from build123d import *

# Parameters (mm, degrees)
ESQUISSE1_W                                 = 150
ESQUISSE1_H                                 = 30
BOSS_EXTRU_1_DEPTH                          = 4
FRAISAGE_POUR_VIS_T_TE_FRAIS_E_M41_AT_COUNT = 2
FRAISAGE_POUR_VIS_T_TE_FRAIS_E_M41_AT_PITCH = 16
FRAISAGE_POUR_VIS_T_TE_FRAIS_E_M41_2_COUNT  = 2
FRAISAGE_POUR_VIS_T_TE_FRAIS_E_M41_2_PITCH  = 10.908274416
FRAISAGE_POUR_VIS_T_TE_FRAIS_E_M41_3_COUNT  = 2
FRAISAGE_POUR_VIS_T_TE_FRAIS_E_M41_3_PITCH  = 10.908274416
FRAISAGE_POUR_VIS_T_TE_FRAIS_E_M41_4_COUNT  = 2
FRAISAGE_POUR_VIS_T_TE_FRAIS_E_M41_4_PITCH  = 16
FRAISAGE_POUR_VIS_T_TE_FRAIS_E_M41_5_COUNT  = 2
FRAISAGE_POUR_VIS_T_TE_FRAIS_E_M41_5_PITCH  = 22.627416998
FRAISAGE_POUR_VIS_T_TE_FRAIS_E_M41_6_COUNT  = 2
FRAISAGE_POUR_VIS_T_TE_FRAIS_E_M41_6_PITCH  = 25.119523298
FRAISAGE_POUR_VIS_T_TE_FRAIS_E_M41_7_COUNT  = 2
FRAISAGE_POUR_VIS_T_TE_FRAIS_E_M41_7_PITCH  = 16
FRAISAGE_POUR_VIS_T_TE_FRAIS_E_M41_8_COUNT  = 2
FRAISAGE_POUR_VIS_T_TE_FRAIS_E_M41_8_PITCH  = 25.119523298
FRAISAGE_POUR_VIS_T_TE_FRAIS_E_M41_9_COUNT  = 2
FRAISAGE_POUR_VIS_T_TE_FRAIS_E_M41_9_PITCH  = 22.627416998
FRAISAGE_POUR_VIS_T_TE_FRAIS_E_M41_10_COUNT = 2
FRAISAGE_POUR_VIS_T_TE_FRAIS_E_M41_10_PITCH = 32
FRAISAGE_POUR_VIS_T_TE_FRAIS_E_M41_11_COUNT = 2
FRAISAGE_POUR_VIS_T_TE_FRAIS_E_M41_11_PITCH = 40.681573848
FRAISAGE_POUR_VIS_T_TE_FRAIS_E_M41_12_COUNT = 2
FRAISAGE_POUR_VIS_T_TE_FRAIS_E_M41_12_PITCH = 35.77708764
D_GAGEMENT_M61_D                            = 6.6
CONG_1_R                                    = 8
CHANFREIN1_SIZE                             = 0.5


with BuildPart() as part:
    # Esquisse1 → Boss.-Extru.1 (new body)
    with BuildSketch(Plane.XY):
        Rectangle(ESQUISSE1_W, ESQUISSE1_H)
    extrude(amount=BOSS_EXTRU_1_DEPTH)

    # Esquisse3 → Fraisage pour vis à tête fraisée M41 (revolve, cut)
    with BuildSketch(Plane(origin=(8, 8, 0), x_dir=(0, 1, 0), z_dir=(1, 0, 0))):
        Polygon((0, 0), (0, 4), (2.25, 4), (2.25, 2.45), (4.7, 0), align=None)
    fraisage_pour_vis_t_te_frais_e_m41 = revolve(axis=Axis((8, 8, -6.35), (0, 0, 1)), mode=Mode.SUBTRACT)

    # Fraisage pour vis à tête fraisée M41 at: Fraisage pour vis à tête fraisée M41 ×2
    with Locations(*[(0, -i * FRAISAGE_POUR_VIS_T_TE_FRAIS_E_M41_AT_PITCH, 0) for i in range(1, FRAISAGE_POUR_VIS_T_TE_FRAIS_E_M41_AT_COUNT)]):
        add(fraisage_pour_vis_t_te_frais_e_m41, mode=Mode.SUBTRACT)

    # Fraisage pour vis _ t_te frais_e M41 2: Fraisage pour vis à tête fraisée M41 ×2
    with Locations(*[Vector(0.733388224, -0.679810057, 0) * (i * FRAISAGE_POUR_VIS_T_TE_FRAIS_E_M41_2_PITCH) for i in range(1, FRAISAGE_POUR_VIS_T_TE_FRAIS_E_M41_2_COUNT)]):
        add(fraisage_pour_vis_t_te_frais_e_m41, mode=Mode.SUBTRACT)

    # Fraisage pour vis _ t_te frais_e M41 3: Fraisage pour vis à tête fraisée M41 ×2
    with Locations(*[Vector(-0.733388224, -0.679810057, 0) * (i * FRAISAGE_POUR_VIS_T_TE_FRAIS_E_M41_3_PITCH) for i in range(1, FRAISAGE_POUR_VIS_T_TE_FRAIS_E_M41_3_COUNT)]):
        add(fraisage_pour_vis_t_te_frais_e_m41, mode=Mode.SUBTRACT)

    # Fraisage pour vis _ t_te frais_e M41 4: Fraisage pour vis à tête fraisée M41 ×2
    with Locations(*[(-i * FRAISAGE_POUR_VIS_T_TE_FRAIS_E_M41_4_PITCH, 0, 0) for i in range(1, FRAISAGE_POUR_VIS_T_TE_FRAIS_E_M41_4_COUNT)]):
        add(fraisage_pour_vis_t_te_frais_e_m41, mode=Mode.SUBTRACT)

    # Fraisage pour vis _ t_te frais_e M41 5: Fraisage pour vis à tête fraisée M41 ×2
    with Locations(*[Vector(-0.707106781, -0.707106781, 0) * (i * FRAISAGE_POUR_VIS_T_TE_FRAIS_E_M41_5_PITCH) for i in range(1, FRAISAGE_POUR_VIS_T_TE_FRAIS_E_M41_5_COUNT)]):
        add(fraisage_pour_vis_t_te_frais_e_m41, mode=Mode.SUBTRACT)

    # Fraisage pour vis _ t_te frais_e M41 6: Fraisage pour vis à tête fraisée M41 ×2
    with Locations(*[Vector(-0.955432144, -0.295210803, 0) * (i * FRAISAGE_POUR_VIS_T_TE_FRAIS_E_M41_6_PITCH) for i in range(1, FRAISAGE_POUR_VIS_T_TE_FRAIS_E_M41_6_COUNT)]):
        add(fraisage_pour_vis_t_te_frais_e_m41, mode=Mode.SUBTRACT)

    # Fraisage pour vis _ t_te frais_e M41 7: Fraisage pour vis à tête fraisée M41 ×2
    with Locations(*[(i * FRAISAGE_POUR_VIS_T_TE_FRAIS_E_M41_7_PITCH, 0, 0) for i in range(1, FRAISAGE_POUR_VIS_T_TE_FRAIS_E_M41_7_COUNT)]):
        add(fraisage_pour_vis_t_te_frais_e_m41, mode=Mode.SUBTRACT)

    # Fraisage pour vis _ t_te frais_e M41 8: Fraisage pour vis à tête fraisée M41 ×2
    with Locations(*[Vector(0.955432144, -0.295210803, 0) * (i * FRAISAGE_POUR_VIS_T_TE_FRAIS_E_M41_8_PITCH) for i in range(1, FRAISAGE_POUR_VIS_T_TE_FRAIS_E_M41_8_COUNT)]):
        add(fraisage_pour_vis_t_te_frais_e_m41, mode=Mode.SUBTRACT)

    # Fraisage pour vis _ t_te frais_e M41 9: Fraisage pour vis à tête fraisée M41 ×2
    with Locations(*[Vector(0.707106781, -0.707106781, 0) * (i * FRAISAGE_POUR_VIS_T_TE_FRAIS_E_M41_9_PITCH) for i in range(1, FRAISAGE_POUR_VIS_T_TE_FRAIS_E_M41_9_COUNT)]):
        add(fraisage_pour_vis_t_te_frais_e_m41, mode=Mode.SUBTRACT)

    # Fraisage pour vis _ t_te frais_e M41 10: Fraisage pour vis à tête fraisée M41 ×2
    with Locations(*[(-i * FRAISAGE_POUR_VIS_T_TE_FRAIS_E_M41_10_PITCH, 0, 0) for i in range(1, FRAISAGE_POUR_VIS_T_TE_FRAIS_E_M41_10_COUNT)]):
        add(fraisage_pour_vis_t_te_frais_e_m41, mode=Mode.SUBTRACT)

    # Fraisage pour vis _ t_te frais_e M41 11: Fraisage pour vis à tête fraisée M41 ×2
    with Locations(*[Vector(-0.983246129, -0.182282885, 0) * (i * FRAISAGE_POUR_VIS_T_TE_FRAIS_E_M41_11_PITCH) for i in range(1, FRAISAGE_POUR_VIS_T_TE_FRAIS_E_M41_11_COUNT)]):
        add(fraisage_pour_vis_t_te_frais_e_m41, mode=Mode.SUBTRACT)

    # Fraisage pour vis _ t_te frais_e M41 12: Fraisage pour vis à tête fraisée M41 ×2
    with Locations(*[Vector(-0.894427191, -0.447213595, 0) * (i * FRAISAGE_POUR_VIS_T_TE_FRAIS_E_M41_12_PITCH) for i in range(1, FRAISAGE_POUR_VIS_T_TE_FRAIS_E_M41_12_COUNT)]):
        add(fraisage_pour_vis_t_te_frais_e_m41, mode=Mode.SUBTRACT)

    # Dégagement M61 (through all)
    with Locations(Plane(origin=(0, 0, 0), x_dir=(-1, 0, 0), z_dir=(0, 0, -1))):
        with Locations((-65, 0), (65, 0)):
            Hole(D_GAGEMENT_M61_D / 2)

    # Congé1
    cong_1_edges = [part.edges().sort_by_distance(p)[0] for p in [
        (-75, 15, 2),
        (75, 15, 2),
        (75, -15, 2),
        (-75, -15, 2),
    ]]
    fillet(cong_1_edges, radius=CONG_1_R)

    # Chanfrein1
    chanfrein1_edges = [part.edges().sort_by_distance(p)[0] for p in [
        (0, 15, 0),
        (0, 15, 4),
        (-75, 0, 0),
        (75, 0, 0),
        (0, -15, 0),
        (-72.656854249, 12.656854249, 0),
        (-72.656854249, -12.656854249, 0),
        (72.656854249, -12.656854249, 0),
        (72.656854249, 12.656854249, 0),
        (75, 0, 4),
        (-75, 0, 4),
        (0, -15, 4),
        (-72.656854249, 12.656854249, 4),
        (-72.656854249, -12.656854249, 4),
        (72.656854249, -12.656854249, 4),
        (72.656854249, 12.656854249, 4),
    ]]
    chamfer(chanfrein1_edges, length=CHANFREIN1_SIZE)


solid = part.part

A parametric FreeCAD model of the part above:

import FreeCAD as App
import Part
import Sketcher
from FreeCAD import Vector
Q = App.Units.Quantity


def edges_at(feature, points):
    """Names of the edges that pass closest to the given points."""
    edges = feature.Shape.Edges
    near = lambda p: min(range(len(edges)), key=lambda i: edges[i].distToShape(Part.Vertex(*p))[0])
    return sorted({f"Edge{near(p) + 1}" for p in points})

doc = App.newDocument("Part")
body = doc.addObject("PartDesign::Body", "Body")

sketch1 = body.newObject("Sketcher::SketchObject", "Sketch")
sketch1.AttachmentSupport = (doc.getObject("XY_Plane"), [""])
sketch1.MapMode = "FlatFace"
sketch1.addGeometry([
    Part.LineSegment(Vector(-75, 15, 0), Vector(-75, -15, 0)),
    Part.LineSegment(Vector(-75, -15, 0), Vector(75, -15, 0)),
    Part.LineSegment(Vector(75, -15, 0), Vector(75, 15, 0)),
    Part.LineSegment(Vector(75, 15, 0), Vector(-75, 15, 0)),
], False)
sketch1.addConstraint([
    Sketcher.Constraint("Coincident", 0, 2, 1, 1),
    Sketcher.Constraint("Coincident", 1, 2, 2, 1),
    Sketcher.Constraint("Coincident", 2, 2, 3, 1),
    Sketcher.Constraint("Coincident", 3, 2, 0, 1),
    Sketcher.Constraint("Vertical", 0),
    Sketcher.Constraint("Horizontal", 1),
    Sketcher.Constraint("Vertical", 2),
    Sketcher.Constraint("Horizontal", 3),
    Sketcher.Constraint("Symmetric", 0, 2, 2, 2, -1, 1),
    Sketcher.Constraint("DistanceX", 1, 1, 1, 2, 150.0),
    Sketcher.Constraint("DistanceY", 0, 2, 0, 1, 30.0),
])
pad1 = body.newObject("PartDesign::Pad", "Pad")
pad1.Profile = sketch1
pad1.Length = 4

sketch2 = body.newObject("Sketcher::SketchObject", "Sketch001")
sketch2.AttachmentSupport = (doc.getObject("YZ_Plane"), [""])
sketch2.MapMode = "FlatFace"
sketch2.AttachmentOffset = App.Placement(Vector(0, 0, 8), App.Rotation())
sketch2.addGeometry([
    Part.LineSegment(Vector(8, 4, 0), Vector(8, 0, 0)),
    Part.LineSegment(Vector(8, 0, 0), Vector(12.7, 0, 0)),
    Part.LineSegment(Vector(12.7, 0, 0), Vector(10.2, 2.5, 0)),
    Part.LineSegment(Vector(10.2, 2.5, 0), Vector(10.2, 4, 0)),
    Part.LineSegment(Vector(10.2, 4, 0), Vector(8, 4, 0)),
], False)
sketch2.addGeometry(Part.LineSegment(Vector(8, 0, 0), Vector(8, 4, 0)), True)
sketch2.addConstraint([
    Sketcher.Constraint("Coincident", 0, 2, 1, 1),
    Sketcher.Constraint("Coincident", 1, 2, 2, 1),
    Sketcher.Constraint("Coincident", 2, 2, 3, 1),
    Sketcher.Constraint("Coincident", 3, 2, 4, 1),
    Sketcher.Constraint("Coincident", 4, 2, 0, 1),
    Sketcher.Constraint("Vertical", 0),
    Sketcher.Constraint("Horizontal", 1),
    Sketcher.Constraint("Vertical", 3),
    Sketcher.Constraint("Horizontal", 4),
    Sketcher.Constraint("Vertical", 5),
    Sketcher.Constraint("Coincident", 5, 1, 0, 2),
    Sketcher.Constraint("PointOnObject", 0, 2, -1),
    Sketcher.Constraint("Horizontal", 3, 2, 5, 2),
    Sketcher.Constraint("DistanceY", 0, 2, 0, 1, 4.0),
    Sketcher.Constraint("Angle", 2, Q("135 deg")),
    Sketcher.Constraint("DistanceX", 1, 1, 1, 2, 4.7),
    Sketcher.Constraint("DistanceX", -1, 1, 0, 2, 8.0),
    Sketcher.Constraint("DistanceX", 4, 2, 4, 1, 2.25),
])
groove = body.newObject("PartDesign::Groove", "Groove")
groove.Profile = sketch2
groove.ReferenceAxis = (sketch2, ["Axis0"])
groove.Angle = 360
doc.recompute()

linearpattern = body.newObject("PartDesign::LinearPattern", "LinearPattern")
linearpattern.Originals = [groove]
linearpattern.Direction = (doc.getObject("Y_Axis"), [""])
linearpattern.Mode = "offset"
linearpattern.Offset = 16
linearpattern.Occurrences = 2
linearpattern.Reversed = True
body.Tip = linearpattern
doc.recompute()

datumline = body.newObject("PartDesign::Line", "DatumLine")
datumline.Placement = App.Placement(Vector(0, 0, 0), App.Rotation(Vector(0, 0, 1), Vector(0.733388224, -0.679810057, 0)))
linearpattern2 = body.newObject("PartDesign::LinearPattern", "LinearPattern001")
linearpattern2.Originals = [groove]
linearpattern2.Direction = (datumline, [""])
linearpattern2.Mode = "offset"
linearpattern2.Offset = 10.908274
linearpattern2.Occurrences = 2
body.Tip = linearpattern2
doc.recompute()

datumline2 = body.newObject("PartDesign::Line", "DatumLine001")
datumline2.Placement = App.Placement(Vector(0, 0, 0), App.Rotation(Vector(0, 0, 1), Vector(-0.733388224, -0.679810057, 0)))
linearpattern3 = body.newObject("PartDesign::LinearPattern", "LinearPattern002")
linearpattern3.Originals = [groove]
linearpattern3.Direction = (datumline2, [""])
linearpattern3.Mode = "offset"
linearpattern3.Offset = 10.908274
linearpattern3.Occurrences = 2
body.Tip = linearpattern3
doc.recompute()

linearpattern4 = body.newObject("PartDesign::LinearPattern", "LinearPattern003")
linearpattern4.Originals = [groove]
linearpattern4.Direction = (doc.getObject("X_Axis"), [""])
linearpattern4.Mode = "offset"
linearpattern4.Offset = 16
linearpattern4.Occurrences = 2
linearpattern4.Reversed = True
body.Tip = linearpattern4
doc.recompute()

datumline3 = body.newObject("PartDesign::Line", "DatumLine002")
datumline3.Placement = App.Placement(Vector(0, 0, 0), App.Rotation(Vector(0, 0, 1), Vector(-0.707106781, -0.707106781, 0)))
linearpattern5 = body.newObject("PartDesign::LinearPattern", "LinearPattern004")
linearpattern5.Originals = [groove]
linearpattern5.Direction = (datumline3, [""])
linearpattern5.Mode = "offset"
linearpattern5.Offset = 22.627417
linearpattern5.Occurrences = 2
body.Tip = linearpattern5
doc.recompute()

datumline4 = body.newObject("PartDesign::Line", "DatumLine003")
datumline4.Placement = App.Placement(Vector(0, 0, 0), App.Rotation(Vector(0, 0, 1), Vector(-0.955432144, -0.295210803, 0)))
linearpattern6 = body.newObject("PartDesign::LinearPattern", "LinearPattern005")
linearpattern6.Originals = [groove]
linearpattern6.Direction = (datumline4, [""])
linearpattern6.Mode = "offset"
linearpattern6.Offset = 25.119523
linearpattern6.Occurrences = 2
body.Tip = linearpattern6
doc.recompute()

linearpattern7 = body.newObject("PartDesign::LinearPattern", "LinearPattern006")
linearpattern7.Originals = [groove]
linearpattern7.Direction = (doc.getObject("X_Axis"), [""])
linearpattern7.Mode = "offset"
linearpattern7.Offset = 16
linearpattern7.Occurrences = 2
body.Tip = linearpattern7
doc.recompute()

datumline5 = body.newObject("PartDesign::Line", "DatumLine004")
datumline5.Placement = App.Placement(Vector(0, 0, 0), App.Rotation(Vector(0, 0, 1), Vector(0.955432144, -0.295210803, 0)))
linearpattern8 = body.newObject("PartDesign::LinearPattern", "LinearPattern007")
linearpattern8.Originals = [groove]
linearpattern8.Direction = (datumline5, [""])
linearpattern8.Mode = "offset"
linearpattern8.Offset = 25.119523
linearpattern8.Occurrences = 2
body.Tip = linearpattern8
doc.recompute()

datumline6 = body.newObject("PartDesign::Line", "DatumLine005")
datumline6.Placement = App.Placement(Vector(0, 0, 0), App.Rotation(Vector(0, 0, 1), Vector(0.707106781, -0.707106781, 0)))
linearpattern9 = body.newObject("PartDesign::LinearPattern", "LinearPattern008")
linearpattern9.Originals = [groove]
linearpattern9.Direction = (datumline6, [""])
linearpattern9.Mode = "offset"
linearpattern9.Offset = 22.627417
linearpattern9.Occurrences = 2
body.Tip = linearpattern9
doc.recompute()

linearpattern10 = body.newObject("PartDesign::LinearPattern", "LinearPattern009")
linearpattern10.Originals = [groove]
linearpattern10.Direction = (doc.getObject("X_Axis"), [""])
linearpattern10.Mode = "offset"
linearpattern10.Offset = 32
linearpattern10.Occurrences = 2
linearpattern10.Reversed = True
body.Tip = linearpattern10
doc.recompute()

datumline7 = body.newObject("PartDesign::Line", "DatumLine006")
datumline7.Placement = App.Placement(Vector(0, 0, 0), App.Rotation(Vector(0, 0, 1), Vector(-0.983246129, -0.182282885, 0)))
linearpattern11 = body.newObject("PartDesign::LinearPattern", "LinearPattern010")
linearpattern11.Originals = [groove]
linearpattern11.Direction = (datumline7, [""])
linearpattern11.Mode = "offset"
linearpattern11.Offset = 40.681574
linearpattern11.Occurrences = 2
body.Tip = linearpattern11
doc.recompute()

datumline8 = body.newObject("PartDesign::Line", "DatumLine007")
datumline8.Placement = App.Placement(Vector(0, 0, 0), App.Rotation(Vector(0, 0, 1), Vector(-0.894427191, -0.447213595, 0)))
linearpattern12 = body.newObject("PartDesign::LinearPattern", "LinearPattern011")
linearpattern12.Originals = [groove]
linearpattern12.Direction = (datumline8, [""])
linearpattern12.Mode = "offset"
linearpattern12.Offset = 35.777088
linearpattern12.Occurrences = 2
body.Tip = linearpattern12

sketch3 = body.newObject("Sketcher::SketchObject", "Sketch002")
sketch3.AttachmentSupport = (doc.getObject("XY_Plane"), [""])
sketch3.MapMode = "FlatFace"
sketch3.addGeometry([
    Part.Circle(Vector(65, 0, 0), Vector(0, 0, 1), 3.3),
    Part.Circle(Vector(-65, 0, 0), Vector(0, 0, 1), 3.3),
], False)
sketch3.addConstraint([
    Sketcher.Constraint("Equal", 0, 1),
    Sketcher.Constraint("Symmetric", 0, 3, 1, 3, -1, 1),
    Sketcher.Constraint("PointOnObject", 0, 3, -1),
    Sketcher.Constraint("Diameter", 0, 6.6),
    Sketcher.Constraint("DistanceX", -1, 1, 0, 3, 65.0),
])
doc.recompute()
hole = body.newObject("PartDesign::Hole", "Hole")
hole.Profile = sketch3
hole.ThreadType = "None"
hole.Diameter = 6.6
hole.DepthType = "ThroughAll"
hole.Reversed = True
doc.recompute()

fillet = body.newObject("PartDesign::Fillet", "Fillet")
fillet.Base = (hole, edges_at(hole, [
    (-75, 15, 2),
    (75, 15, 2),
    (75, -15, 2),
    (-75, -15, 2),
]))
fillet.Radius = 8
doc.recompute()

chamfer = body.newObject("PartDesign::Chamfer", "Chamfer")
chamfer.Base = (fillet, edges_at(fillet, [
    (0, 15, 0),
    (0, 15, 4),
    (-75, 0, 0),
    (75, 0, 0),
    (0, -15, 0),
    (-72.657, 12.657, 0),
    (-72.657, -12.657, 0),
    (72.657, -12.657, 0),
    (72.657, 12.657, 0),
    (75, 0, 4),
    (-75, 0, 4),
    (0, -15, 4),
    (-72.657, 12.657, 4),
    (-72.657, -12.657, 4),
    (72.657, -12.657, 4),
    (72.657, 12.657, 4),
]))
chamfer.Size = 0.5

doc.recompute()
